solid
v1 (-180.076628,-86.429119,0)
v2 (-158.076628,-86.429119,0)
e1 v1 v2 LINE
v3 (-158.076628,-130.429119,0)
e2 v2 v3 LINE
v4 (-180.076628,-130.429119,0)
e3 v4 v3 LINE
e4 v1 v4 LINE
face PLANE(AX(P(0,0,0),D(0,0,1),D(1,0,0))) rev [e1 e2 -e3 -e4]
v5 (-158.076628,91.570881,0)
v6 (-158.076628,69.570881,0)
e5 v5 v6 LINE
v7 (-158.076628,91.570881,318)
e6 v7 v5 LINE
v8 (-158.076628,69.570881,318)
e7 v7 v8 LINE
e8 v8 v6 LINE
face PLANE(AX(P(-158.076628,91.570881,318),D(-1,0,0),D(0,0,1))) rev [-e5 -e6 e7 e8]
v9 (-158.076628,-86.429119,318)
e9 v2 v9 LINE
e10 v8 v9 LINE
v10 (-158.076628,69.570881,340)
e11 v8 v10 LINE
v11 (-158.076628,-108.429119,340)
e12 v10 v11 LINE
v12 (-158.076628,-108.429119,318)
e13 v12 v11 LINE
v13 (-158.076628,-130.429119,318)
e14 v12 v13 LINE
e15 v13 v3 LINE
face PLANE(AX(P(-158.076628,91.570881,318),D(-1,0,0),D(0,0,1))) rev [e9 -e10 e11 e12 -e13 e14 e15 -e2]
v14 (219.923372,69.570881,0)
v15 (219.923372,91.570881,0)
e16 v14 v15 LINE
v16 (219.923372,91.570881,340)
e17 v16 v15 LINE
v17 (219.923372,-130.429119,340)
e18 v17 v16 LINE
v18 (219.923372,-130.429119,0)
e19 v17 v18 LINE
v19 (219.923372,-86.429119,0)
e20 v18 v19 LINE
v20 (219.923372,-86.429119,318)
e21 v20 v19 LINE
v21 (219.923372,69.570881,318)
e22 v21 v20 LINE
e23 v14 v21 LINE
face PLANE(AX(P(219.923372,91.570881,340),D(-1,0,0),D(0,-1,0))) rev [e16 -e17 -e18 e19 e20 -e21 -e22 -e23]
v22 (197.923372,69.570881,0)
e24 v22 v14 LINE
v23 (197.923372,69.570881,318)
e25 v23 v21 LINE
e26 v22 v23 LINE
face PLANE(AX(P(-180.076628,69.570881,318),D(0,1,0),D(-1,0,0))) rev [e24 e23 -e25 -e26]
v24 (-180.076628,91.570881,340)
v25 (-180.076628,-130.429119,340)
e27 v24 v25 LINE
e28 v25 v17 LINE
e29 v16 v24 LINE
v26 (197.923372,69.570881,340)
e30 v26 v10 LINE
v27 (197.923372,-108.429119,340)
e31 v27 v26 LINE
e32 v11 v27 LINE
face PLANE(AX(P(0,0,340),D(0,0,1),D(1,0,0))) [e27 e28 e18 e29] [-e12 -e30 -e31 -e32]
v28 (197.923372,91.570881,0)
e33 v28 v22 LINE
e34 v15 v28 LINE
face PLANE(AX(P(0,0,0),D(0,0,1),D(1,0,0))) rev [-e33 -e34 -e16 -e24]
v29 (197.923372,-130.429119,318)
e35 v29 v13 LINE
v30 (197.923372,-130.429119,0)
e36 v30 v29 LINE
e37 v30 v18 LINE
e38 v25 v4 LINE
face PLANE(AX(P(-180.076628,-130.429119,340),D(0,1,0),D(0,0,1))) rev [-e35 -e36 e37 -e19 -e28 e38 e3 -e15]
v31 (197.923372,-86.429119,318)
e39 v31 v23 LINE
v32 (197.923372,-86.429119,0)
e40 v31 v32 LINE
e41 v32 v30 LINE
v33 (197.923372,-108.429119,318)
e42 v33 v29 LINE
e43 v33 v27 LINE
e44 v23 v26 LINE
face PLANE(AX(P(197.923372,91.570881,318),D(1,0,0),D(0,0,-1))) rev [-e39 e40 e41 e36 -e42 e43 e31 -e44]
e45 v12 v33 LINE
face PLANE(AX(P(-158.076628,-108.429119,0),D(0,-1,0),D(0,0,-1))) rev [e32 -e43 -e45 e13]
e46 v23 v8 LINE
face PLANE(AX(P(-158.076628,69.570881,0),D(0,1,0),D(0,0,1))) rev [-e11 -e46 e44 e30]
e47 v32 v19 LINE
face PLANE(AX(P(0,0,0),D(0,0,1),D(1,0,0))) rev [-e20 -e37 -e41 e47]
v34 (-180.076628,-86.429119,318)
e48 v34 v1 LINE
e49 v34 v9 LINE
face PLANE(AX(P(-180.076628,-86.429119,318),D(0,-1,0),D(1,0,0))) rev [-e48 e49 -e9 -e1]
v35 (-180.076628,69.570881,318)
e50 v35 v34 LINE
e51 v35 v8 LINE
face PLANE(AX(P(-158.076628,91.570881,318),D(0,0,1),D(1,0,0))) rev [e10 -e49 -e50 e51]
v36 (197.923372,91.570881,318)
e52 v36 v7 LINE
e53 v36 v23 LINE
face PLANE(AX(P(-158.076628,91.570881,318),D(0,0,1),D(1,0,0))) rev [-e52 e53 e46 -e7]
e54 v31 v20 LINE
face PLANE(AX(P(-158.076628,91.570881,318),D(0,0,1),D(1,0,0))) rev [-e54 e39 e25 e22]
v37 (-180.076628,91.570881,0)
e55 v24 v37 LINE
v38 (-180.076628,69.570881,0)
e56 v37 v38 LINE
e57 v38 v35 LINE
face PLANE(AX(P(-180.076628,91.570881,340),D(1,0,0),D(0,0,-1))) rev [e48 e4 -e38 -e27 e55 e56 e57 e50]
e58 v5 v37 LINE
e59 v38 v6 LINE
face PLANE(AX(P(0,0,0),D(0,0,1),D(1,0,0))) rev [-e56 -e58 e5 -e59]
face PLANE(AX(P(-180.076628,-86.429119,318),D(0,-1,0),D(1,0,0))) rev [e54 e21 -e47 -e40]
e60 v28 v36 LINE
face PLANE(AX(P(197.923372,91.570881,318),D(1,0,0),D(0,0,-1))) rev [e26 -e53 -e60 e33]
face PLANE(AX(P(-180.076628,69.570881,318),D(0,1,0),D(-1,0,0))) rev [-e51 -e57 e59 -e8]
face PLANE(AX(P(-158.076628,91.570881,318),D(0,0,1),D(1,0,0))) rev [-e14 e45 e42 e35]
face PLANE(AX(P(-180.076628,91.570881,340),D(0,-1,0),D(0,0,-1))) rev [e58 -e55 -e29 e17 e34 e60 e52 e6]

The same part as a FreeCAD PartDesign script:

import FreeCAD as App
import Part
import Sketcher
from FreeCAD import Vector

doc = App.newDocument("Part")
body = doc.addObject("PartDesign::Body", "Body")

sketch1 = body.newObject("Sketcher::SketchObject", "Sketch")
sketch1.AttachmentSupport = (doc.getObject("XY_Plane"), [""])
sketch1.MapMode = "FlatFace"
sketch1.addGeometry([
    Part.LineSegment(Vector(-180, 92, 0), Vector(-180, -130, 0)),
    Part.LineSegment(Vector(-180, -130, 0), Vector(220, -130, 0)),
    Part.LineSegment(Vector(220, -130, 0), Vector(220, 92, 0)),
    Part.LineSegment(Vector(220, 92, 0), Vector(-180, 92, 0)),
], False)
sketch1.addConstraint([
    Sketcher.Constraint("Coincident", 0, 2, 1, 1),
    Sketcher.Constraint("Coincident", 1, 2, 2, 1),
    Sketcher.Constraint("Coincident", 2, 2, 3, 1),
    Sketcher.Constraint("Coincident", 3, 2, 0, 1),
    Sketcher.Constraint("Vertical", 0),
    Sketcher.Constraint("Horizontal", 1),
    Sketcher.Constraint("Vertical", 2),
    Sketcher.Constraint("Horizontal", 3),
    Sketcher.Constraint("DistanceX", 1, 1, 1, 2, 400.0),
    Sketcher.Constraint("DistanceY", 0, 2, 0, 1, 222.0),
    Sketcher.Constraint("DistanceX", 0, 2, -1, 1, 180.076628),
    Sketcher.Constraint("DistanceY", 0, 2, -1, 1, 130.429119),
])
pad1 = body.newObject("PartDesign::Pad", "Pad")
pad1.Profile = sketch1
pad1.Length = 340

sketch2 = body.newObject("Sketcher::SketchObject", "Sketch001")
sketch2.AttachmentSupport = (doc.getObject("XZ_Plane"), [""])
sketch2.MapMode = "FlatFace"
sketch2.AttachmentOffset = App.Placement(Vector(0, 0, 130.429119), App.Rotation())
sketch2.addGeometry([
    Part.LineSegment(Vector(-158, 318, 0), Vector(-158, 0, 0)),
    Part.LineSegment(Vector(-158, 0, 0), Vector(198, 0, 0)),
    Part.LineSegment(Vector(198, 0, 0), Vector(198, 318, 0)),
    Part.LineSegment(Vector(198, 318, 0), Vector(-158, 318, 0)),
], False)
sketch2.addConstraint([
    Sketcher.Constraint("Coincident", 0, 2, 1, 1),
    Sketcher.Constraint("Coincident", 1, 2, 2, 1),
    Sketcher.Constraint("Coincident", 2, 2, 3, 1),
    Sketcher.Constraint("Coincident", 3, 2, 0, 1),
    Sketcher.Constraint("Vertical", 0),
    Sketcher.Constraint("Horizontal", 1),
    Sketcher.Constraint("Vertical", 2),
    Sketcher.Constraint("Horizontal", 3),
    Sketcher.Constraint("PointOnObject", 0, 2, -1),
    Sketcher.Constraint("DistanceX", 1, 1, 1, 2, 356.0),
    Sketcher.Constraint("DistanceY", 0, 2, 0, 1, 318.0),
    Sketcher.Constraint("DistanceX", 0, 2, -1, 1, 158.076628),
])
pocket1 = body.newObject("PartDesign::Pocket", "Pocket")
pocket1.Profile = sketch2
pocket1.Type = "ThroughAll"

sketch3 = body.newObject("Sketcher::SketchObject", "Sketch002")
sketch3.AttachmentSupport = (doc.getObject("YZ_Plane"), [""])
sketch3.MapMode = "FlatFace"
sketch3.AttachmentOffset = App.Placement(Vector(0, 0, 219.923372), App.Rotation())
sketch3.addGeometry([
    Part.LineSegment(Vector(70, 318, 0), Vector(-86, 318, 0)),
    Part.LineSegment(Vector(-86, 318, 0), Vector(-86, 0, 0)),
    Part.LineSegment(Vector(-86, 0, 0), Vector(70, 0, 0)),
    Part.LineSegment(Vector(70, 0, 0), Vector(70, 318, 0)),
], False)
sketch3.addConstraint([
    Sketcher.Constraint("Coincident", 0, 2, 1, 1),
    Sketcher.Constraint("Coincident", 1, 2, 2, 1),
    Sketcher.Constraint("Coincident", 2, 2, 3, 1),
    Sketcher.Constraint("Coincident", 3, 2, 0, 1),
    Sketcher.Constraint("Horizontal", 0),
    Sketcher.Constraint("Vertical", 1),
    Sketcher.Constraint("Horizontal", 2),
    Sketcher.Constraint("Vertical", 3),
    Sketcher.Constraint("PointOnObject", 1, 2, -1),
    Sketcher.Constraint("DistanceX", 0, 2, 0, 1, 156.0),
    Sketcher.Constraint("DistanceY", 1, 2, 1, 1, 318.0),
    Sketcher.Constraint("DistanceX", 0, 2, -1, 1, 86.429119),
])
pocket2 = body.newObject("PartDesign::Pocket", "Pocket001")
pocket2.Profile = sketch3
pocket2.Type = "ThroughAll"

sketch4 = body.newObject("Sketcher::SketchObject", "Sketch003")
sketch4.AttachmentSupport = (doc.getObject("XY_Plane"), [""])
sketch4.MapMode = "FlatFace"
sketch4.AttachmentOffset = App.Placement(Vector(0, 0, 340), App.Rotation())
sketch4.addGeometry([
    Part.LineSegment(Vector(-158, 70, 0), Vector(-158, -108, 0)),
    Part.LineSegment(Vector(-158, -108, 0), Vector(198, -108, 0)),
    Part.LineSegment(Vector(198, -108, 0), Vector(198, 70, 0)),
    Part.LineSegment(Vector(198, 70, 0), Vector(-158, 70, 0)),
], False)
sketch4.addConstraint([
    Sketcher.Constraint("Coincident", 0, 2, 1, 1),
    Sketcher.Constraint("Coincident", 1, 2, 2, 1),
    Sketcher.Constraint("Coincident", 2, 2, 3, 1),
    Sketcher.Constraint("Coincident", 3, 2, 0, 1),
    Sketcher.Constraint("Vertical", 0),
    Sketcher.Constraint("Horizontal", 1),
    Sketcher.Constraint("Vertical", 2),
    Sketcher.Constraint("Horizontal", 3),
    Sketcher.Constraint("DistanceX", 1, 1, 1, 2, 356.0),
    Sketcher.Constraint("DistanceY", 0, 2, 0, 1, 178.0),
    Sketcher.Constraint("DistanceX", 0, 2, -1, 1, 158.076628),
    Sketcher.Constraint("DistanceY", 0, 2, -1, 1, 108.429119),
])
pocket3 = body.newObject("PartDesign::Pocket", "Pocket002")
pocket3.Profile = sketch4
pocket3.Type = "ThroughAll"

doc.recompute()
